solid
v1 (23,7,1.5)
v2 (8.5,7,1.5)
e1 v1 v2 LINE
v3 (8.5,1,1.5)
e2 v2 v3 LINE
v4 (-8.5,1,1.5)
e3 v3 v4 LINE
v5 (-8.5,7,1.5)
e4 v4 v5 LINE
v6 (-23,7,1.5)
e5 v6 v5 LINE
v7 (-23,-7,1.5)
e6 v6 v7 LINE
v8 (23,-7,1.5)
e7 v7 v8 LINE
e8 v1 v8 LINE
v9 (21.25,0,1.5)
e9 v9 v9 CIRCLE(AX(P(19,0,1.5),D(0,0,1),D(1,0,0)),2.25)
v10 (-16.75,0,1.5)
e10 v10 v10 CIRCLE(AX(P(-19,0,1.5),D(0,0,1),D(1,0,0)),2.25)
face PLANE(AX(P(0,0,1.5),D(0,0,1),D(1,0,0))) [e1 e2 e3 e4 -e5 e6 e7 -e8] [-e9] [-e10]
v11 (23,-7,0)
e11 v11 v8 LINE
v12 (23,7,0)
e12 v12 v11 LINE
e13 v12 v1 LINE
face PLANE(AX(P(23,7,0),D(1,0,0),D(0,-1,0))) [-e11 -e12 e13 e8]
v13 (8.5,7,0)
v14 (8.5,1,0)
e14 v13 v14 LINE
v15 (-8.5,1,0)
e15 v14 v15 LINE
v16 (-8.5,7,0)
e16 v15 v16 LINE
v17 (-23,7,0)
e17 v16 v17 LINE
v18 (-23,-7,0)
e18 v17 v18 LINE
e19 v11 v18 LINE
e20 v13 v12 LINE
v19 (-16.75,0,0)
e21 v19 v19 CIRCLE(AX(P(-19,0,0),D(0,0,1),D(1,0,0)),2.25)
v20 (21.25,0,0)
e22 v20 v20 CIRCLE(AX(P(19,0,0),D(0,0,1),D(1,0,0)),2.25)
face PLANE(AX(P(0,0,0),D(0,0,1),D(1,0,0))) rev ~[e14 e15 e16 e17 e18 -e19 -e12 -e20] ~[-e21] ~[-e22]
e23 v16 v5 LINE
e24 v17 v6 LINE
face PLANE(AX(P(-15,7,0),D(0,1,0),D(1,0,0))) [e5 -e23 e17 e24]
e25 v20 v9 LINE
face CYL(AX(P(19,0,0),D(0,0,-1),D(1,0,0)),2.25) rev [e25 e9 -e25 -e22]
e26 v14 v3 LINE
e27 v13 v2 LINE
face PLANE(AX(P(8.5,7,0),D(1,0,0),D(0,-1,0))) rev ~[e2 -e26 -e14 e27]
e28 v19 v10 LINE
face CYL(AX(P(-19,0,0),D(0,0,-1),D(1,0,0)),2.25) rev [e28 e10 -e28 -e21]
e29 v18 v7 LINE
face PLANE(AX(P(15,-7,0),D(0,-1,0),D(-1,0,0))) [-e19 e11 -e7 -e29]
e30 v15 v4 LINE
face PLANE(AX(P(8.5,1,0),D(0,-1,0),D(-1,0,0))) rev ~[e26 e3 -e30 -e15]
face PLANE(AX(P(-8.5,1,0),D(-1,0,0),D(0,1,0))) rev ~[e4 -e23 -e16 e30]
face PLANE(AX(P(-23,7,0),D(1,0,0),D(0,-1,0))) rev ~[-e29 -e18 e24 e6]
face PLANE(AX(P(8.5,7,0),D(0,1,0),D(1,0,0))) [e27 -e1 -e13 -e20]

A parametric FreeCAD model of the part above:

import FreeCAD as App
import Part
import Sketcher


def add_polygon(sketch, points):
    """Adds a closed chain of lines whose ends are joined by coincident constraints."""
    first, n = sketch.GeometryCount, len(points)
    for a, b in zip(points, points[1:] + points[:1]):
        sketch.addGeometry(Part.LineSegment(App.Vector(*a, 0), App.Vector(*b, 0)), False)
    for i in range(n):
        sketch.addConstraint(Sketcher.Constraint("Coincident", first + i, 2, first + (i + 1) % n, 1))

doc = App.newDocument("Part")
body = doc.addObject("PartDesign::Body", "Body")

# Sketch on XY plane
sketch1 = doc.addObject("Sketcher::SketchObject", "Sketch")
body.addObject(sketch1)
sketch1.AttachmentSupport = (doc.XY_Plane, [""])
sketch1.MapMode = "FlatFace"
add_polygon(sketch1, [(-8.5, 7), (-23, 7), (-23, -7), (23, -7), (23, 7), (8.5, 7), (8.5, 1), (-8.5, 1)])  # lines 0-7
sketch1.addGeometry(Part.Circle(App.Vector(19, 0, 0), App.Vector(0, 0, 1), 2.25), False)  # 8
sketch1.addGeometry(Part.Circle(App.Vector(-19, 0, 0), App.Vector(0, 0, 1), 2.25), False)  # 9
sketch1.addConstraint(Sketcher.Constraint("Horizontal", 0))
sketch1.addConstraint(Sketcher.Constraint("Vertical", 1))
sketch1.addConstraint(Sketcher.Constraint("Horizontal", 2))
sketch1.addConstraint(Sketcher.Constraint("Vertical", 3))
sketch1.addConstraint(Sketcher.Constraint("Horizontal", 4))
sketch1.addConstraint(Sketcher.Constraint("Vertical", 5))
sketch1.addConstraint(Sketcher.Constraint("Horizontal", 6))
sketch1.addConstraint(Sketcher.Constraint("Vertical", 7))
sketch1.addConstraint(Sketcher.Constraint("Equal", 8, 9))
sketch1.addConstraint(Sketcher.Constraint("Symmetric", 8, 3, 9, 3, -1, 1))
sketch1.addConstraint(Sketcher.Constraint("Symmetric", 0, 2, 2, 2, -1, 1))
sketch1.addConstraint(Sketcher.Constraint("Symmetric", 4, 2, 7, 2, -2))
sketch1.addConstraint(Sketcher.Constraint("PointOnObject", 8, 3, -1))
sketch1.addConstraint(Sketcher.Constraint("Diameter", 8, 4.5))
sketch1.addConstraint(Sketcher.Constraint("DistanceX", 6, 2, 6, 1, 17.0))
sketch1.addConstraint(Sketcher.Constraint("DistanceY", 1, 2, 1, 1, 14.0))
sketch1.addConstraint(Sketcher.Constraint("DistanceY", 5, 2, 5, 1, 6.0))
sketch1.addConstraint(Sketcher.Constraint("DistanceX", 0, 2, 9, 3, 4.0))
sketch1.addConstraint(Sketcher.Constraint("DistanceX", 2, 1, 2, 2, 46.0))
pad1 = doc.addObject("PartDesign::Pad", "Pad")
body.addObject(pad1)
pad1.Profile = sketch1
pad1.Length = 1.5

doc.recompute()
